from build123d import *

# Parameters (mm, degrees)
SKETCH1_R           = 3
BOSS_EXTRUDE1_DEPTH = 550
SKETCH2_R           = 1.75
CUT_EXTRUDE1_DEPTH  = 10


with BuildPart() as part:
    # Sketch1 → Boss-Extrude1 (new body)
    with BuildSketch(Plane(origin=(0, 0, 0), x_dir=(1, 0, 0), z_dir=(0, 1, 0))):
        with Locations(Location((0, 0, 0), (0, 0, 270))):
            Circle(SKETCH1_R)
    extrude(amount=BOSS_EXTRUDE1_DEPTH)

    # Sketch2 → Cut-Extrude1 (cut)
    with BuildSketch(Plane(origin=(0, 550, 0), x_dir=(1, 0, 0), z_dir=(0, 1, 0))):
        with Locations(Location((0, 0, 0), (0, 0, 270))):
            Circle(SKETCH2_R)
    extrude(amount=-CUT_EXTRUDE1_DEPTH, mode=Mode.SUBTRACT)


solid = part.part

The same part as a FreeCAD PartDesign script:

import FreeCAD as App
import Part
import Sketcher

doc = App.newDocument("Part")
body = doc.addObject("PartDesign::Body", "Body")

sketch1 = body.newObject("Sketcher::SketchObject", "Sketch")
sketch1.AttachmentSupport = (doc.getObject("XZ_Plane"), [""])
sketch1.MapMode = "FlatFace"
sketch1.addGeometry(Part.Circle(App.Vector(0, 0, 0), App.Vector(0, 0, 1), 3), False)
sketch1.addConstraint(Sketcher.Constraint("Coincident", 0, 3, -1, 1))
sketch1.addConstraint(Sketcher.Constraint("Diameter", 0, 6.0))
pad1 = body.newObject("PartDesign::Pad", "Pad")
pad1.Profile = sketch1
pad1.Length = 550
pad1.Reversed = True

sketch2 = body.newObject("Sketcher::SketchObject", "Sketch001")
sketch2.AttachmentSupport = (doc.getObject("XZ_Plane"), [""])
sketch2.MapMode = "FlatFace"
sketch2.AttachmentOffset = App.Placement(App.Vector(0, 0, -550), App.Rotation())
sketch2.addGeometry(Part.Circle(App.Vector(0, 0, 0), App.Vector(0, 0, 1), 1.75), False)
sketch2.addConstraint(Sketcher.Constraint("Coincident", 0, 3, -1, 1))
sketch2.addConstraint(Sketcher.Constraint("Diameter", 0, 3.5))
pocket1 = body.newObject("PartDesign::Pocket", "Pocket")
pocket1.Profile = sketch2
pocket1.Length = 10
pocket1.Reversed = True

doc.recompute()
